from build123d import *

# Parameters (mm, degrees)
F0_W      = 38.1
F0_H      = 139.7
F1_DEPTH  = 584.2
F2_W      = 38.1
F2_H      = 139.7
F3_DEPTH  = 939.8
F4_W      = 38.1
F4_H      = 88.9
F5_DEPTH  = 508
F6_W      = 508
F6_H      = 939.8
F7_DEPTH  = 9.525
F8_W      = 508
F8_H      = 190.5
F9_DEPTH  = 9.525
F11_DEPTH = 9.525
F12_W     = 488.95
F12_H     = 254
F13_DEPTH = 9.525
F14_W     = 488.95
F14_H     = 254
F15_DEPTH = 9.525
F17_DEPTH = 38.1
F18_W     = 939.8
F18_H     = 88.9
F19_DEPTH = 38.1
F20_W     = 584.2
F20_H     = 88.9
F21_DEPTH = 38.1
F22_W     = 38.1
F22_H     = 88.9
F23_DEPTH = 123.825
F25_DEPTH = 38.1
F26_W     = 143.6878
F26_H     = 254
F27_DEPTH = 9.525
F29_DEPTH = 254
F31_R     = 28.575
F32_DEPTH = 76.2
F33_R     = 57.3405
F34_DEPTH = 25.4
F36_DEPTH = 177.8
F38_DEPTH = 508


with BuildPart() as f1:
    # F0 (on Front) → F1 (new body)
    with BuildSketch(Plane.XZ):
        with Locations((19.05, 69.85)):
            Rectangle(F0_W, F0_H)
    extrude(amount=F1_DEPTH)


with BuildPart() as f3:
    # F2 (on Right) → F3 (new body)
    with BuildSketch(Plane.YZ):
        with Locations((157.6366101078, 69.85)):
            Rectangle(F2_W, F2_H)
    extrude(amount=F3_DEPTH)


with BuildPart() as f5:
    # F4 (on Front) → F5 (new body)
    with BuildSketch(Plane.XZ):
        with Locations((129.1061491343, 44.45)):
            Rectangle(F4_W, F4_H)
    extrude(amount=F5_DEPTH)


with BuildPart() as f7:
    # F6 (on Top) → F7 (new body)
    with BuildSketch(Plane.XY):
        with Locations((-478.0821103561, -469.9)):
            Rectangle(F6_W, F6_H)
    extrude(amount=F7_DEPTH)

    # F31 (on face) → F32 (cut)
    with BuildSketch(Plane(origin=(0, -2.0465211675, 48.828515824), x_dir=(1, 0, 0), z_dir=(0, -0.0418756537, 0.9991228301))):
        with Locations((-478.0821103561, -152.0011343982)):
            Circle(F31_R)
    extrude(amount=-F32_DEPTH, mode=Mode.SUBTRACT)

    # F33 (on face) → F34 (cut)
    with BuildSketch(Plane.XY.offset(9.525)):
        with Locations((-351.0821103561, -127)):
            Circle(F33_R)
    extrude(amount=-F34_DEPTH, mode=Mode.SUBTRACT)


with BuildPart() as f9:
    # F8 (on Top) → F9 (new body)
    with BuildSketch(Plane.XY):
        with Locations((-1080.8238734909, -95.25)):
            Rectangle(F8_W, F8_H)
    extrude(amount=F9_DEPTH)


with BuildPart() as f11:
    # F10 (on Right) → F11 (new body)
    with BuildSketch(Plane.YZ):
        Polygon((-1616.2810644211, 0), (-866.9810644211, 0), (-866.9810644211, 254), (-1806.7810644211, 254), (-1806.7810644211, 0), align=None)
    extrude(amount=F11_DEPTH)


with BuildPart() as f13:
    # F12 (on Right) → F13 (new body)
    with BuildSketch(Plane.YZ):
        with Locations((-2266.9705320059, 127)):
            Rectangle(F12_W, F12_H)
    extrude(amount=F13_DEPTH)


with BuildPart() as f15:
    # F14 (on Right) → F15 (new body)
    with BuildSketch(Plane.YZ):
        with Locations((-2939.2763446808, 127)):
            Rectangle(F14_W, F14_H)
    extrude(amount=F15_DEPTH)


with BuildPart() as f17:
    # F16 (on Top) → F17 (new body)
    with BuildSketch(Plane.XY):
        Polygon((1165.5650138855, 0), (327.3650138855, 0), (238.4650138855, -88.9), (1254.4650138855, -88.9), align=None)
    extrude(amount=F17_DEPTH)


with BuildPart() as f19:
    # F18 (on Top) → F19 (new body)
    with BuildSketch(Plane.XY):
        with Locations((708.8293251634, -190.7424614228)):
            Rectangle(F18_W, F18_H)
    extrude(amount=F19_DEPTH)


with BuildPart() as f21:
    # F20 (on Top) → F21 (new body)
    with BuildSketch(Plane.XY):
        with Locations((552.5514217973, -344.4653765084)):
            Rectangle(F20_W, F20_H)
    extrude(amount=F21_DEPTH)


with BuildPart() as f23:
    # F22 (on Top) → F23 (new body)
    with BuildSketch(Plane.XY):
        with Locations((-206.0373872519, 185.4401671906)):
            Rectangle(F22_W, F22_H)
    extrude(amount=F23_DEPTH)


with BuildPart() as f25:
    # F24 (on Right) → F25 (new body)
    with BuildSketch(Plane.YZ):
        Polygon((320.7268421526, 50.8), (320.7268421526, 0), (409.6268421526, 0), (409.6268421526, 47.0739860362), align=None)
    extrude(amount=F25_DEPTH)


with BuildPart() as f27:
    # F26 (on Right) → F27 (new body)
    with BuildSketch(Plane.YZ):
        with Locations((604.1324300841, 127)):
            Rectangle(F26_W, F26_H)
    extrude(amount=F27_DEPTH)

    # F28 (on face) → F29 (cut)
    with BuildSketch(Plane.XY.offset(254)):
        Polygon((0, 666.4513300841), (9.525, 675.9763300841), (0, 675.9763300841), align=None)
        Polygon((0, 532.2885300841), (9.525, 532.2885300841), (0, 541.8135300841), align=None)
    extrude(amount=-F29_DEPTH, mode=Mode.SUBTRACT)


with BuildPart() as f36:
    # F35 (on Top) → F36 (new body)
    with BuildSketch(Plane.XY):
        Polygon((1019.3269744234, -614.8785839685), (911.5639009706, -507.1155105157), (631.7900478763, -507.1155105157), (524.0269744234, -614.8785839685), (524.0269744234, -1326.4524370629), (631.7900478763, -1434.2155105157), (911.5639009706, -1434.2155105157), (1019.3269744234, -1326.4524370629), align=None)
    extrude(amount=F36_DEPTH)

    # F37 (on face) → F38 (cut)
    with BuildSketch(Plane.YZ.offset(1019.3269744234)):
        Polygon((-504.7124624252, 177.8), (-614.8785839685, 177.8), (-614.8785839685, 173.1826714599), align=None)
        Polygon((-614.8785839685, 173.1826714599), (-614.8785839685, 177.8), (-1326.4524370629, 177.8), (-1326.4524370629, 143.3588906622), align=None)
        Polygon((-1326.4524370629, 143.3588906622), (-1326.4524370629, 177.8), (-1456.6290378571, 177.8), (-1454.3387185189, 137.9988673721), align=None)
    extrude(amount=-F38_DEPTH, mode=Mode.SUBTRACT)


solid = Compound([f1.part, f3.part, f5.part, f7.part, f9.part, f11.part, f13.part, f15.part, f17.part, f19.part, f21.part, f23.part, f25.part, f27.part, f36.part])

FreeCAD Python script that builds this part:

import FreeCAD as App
import Part
import Sketcher

V = App.Vector
Q = App.Units.Quantity

doc = App.newDocument("Part")
params = doc.addObject("Spreadsheet::Sheet", "Params")
for row, (alias, value) in enumerate([
    ("sketch1_width", "1.5 in"),
    ("sketch1_height", "5.5 in"),
    ("pad1_length", "23 in"),
    ("sketch2_width", "1.5 in"),
    ("sketch2_height", "5.5 in"),
    ("pad2_length", "37 in"),
    ("sketch3_width", "1.5 in"),
    ("sketch3_height", "3.5 in"),
    ("pad3_length", "20 in"),
    ("sketch4_width", "20 in"),
    ("sketch4_height", "37 in"),
    ("pad4_length", "0.375 in"),
    ("sketch5_diameter", "2.25 in"),
    ("pocket1_length", "3 in"),
    ("sketch6_diameter", "4.515 in"),
    ("pocket2_length", "1 in"),
    ("sketch7_width", "20 in"),
    ("sketch7_height", "7.5 in"),
    ("pad5_length", "0.375 in"),
    ("sketch8_width", "37 in"),
    ("sketch8_height", "10 in"),
    ("pad6_length", "0.375 in"),
    ("sketch9_height", "10 in"),
    ("sketch9_width", "19.25 in"),
    ("pad7_length", "0.375 in"),
    ("sketch10_height", "10 in"),
    ("sketch10_width", "19.25 in"),
    ("pad8_length", "0.375 in"),
    ("sketch11_width", "33 in"),
    ("sketch11_width2", "40 in"),
    ("pad9_length", "1.5 in"),
    ("sketch12_width", "37 in"),
    ("sketch12_height", "3.5 in"),
    ("pad10_length", "1.5 in"),
    ("sketch13_width", "23 in"),
    ("sketch13_height", "3.5 in"),
    ("pad11_length", "1.5 in"),
    ("sketch14_width", "1.5 in"),
    ("sketch14_height", "3.5 in"),
    ("pad12_length", "4.875 in"),
    ("sketch15_height", "2 in"),
    ("sketch15_width", "3.5 in"),
    ("pad13_length", "1.5 in"),
    ("sketch16_height", "10 in"),
    ("sketch16_width", "5.657 in"),
    ("pad14_length", "0.375 in"),
    ("sketch17_width", "0.375 in"),
    ("pocket3_length", "10 in"),
    ("sketch18_length", "6 in"),
    ("pad15_length", "7 in"),
    ("pocket4_length", "20 in"),
], start=1):
    params.set(f"A{row}", alias)
    params.set(f"B{row}", "=" + value)
    params.setAlias(f"B{row}", alias)

body = doc.addObject("PartDesign::Body", "Body")

# Sketch on XZ plane
sketch1 = body.newObject("Sketcher::SketchObject", "Sketch")
sketch1.AttachmentSupport = (doc.getObject("XZ_Plane"), [""])
sketch1.MapMode = "FlatFace"
sketch1.addGeometry([
    Part.LineSegment(V(0, 139.7, 0), V(0, 0, 0)),
    Part.LineSegment(V(0, 0, 0), V(38.1, 0, 0)),
    Part.LineSegment(V(38.1, 0, 0), V(38.1, 139.7, 0)),
    Part.LineSegment(V(38.1, 139.7, 0), V(0, 139.7, 0)),
], False)
sketch1.addConstraint([
    Sketcher.Constraint("Coincident", 0, 2, 1, 1),
    Sketcher.Constraint("Coincident", 1, 2, 2, 1),
    Sketcher.Constraint("Coincident", 2, 2, 3, 1),
    Sketcher.Constraint("Coincident", 3, 2, 0, 1),
    Sketcher.Constraint("Vertical", 0),
    Sketcher.Constraint("Horizontal", 1),
    Sketcher.Constraint("Vertical", 2),
    Sketcher.Constraint("Horizontal", 3),
    Sketcher.Constraint("Coincident", 0, 2, -1, 1),
    Sketcher.Constraint("DistanceX", 1, 1, 1, 2, Q("1.5 in")),
    Sketcher.Constraint("DistanceY", 0, 2, 0, 1, Q("5.5 in")),
])
sketch1.setExpression("Constraints[9]", "Params.sketch1_width")
sketch1.setExpression("Constraints[10]", "Params.sketch1_height")
pad1 = body.newObject("PartDesign::Pad", "Pad")
pad1.Profile = sketch1
pad1.setExpression("Length", "Params.pad1_length")
body2 = doc.addObject("PartDesign::Body", "Body001")

# Sketch on YZ plane
sketch2 = body2.newObject("Sketcher::SketchObject", "Sketch001")
sketch2.AttachmentSupport = (doc.getObject("YZ_Plane001"), [""])
sketch2.MapMode = "FlatFace"
sketch2.addGeometry([
    Part.LineSegment(V(138.58661, 139.7, 0), V(138.58661, 0, 0)),
    Part.LineSegment(V(138.58661, 0, 0), V(176.68661, 0, 0)),
    Part.LineSegment(V(176.68661, 0, 0), V(176.68661, 139.7, 0)),
    Part.LineSegment(V(176.68661, 139.7, 0), V(138.58661, 139.7, 0)),
], False)
sketch2.addConstraint([
    Sketcher.Constraint("Coincident", 0, 2, 1, 1),
    Sketcher.Constraint("Coincident", 1, 2, 2, 1),
    Sketcher.Constraint("Coincident", 2, 2, 3, 1),
    Sketcher.Constraint("Coincident", 3, 2, 0, 1),
    Sketcher.Constraint("Vertical", 0),
    Sketcher.Constraint("Horizontal", 1),
    Sketcher.Constraint("Vertical", 2),
    Sketcher.Constraint("Horizontal", 3),
    Sketcher.Constraint("PointOnObject", 0, 2, -1),
    Sketcher.Constraint("DistanceX", 1, 1, 1, 2, Q("1.5 in")),
    Sketcher.Constraint("DistanceY", 0, 2, 0, 1, Q("5.5 in")),
    Sketcher.Constraint("DistanceX", -1, 1, 0, 2, Q("138.58661 mm")),
])
sketch2.setExpression("Constraints[9]", "Params.sketch2_width")
sketch2.setExpression("Constraints[10]", "Params.sketch2_height")
pad2 = body2.newObject("PartDesign::Pad", "Pad001")
pad2.Profile = sketch2
pad2.setExpression("Length", "Params.pad2_length")
body3 = doc.addObject("PartDesign::Body", "Body002")

# Sketch on XZ plane
sketch3 = body3.newObject("Sketcher::SketchObject", "Sketch002")
sketch3.AttachmentSupport = (doc.getObject("XZ_Plane002"), [""])
sketch3.MapMode = "FlatFace"
sketch3.addGeometry([
    Part.LineSegment(V(110.056149, 88.9, 0), V(110.056149, 0, 0)),
    Part.LineSegment(V(110.056149, 0, 0), V(148.156149, 0, 0)),
    Part.LineSegment(V(148.156149, 0, 0), V(148.156149, 88.9, 0)),
    Part.LineSegment(V(148.156149, 88.9, 0), V(110.056149, 88.9, 0)),
], False)
sketch3.addConstraint([
    Sketcher.Constraint("Coincident", 0, 2, 1, 1),
    Sketcher.Constraint("Coincident", 1, 2, 2, 1),
    Sketcher.Constraint("Coincident", 2, 2, 3, 1),
    Sketcher.Constraint("Coincident", 3, 2, 0, 1),
    Sketcher.Constraint("Vertical", 0),
    Sketcher.Constraint("Horizontal", 1),
    Sketcher.Constraint("Vertical", 2),
    Sketcher.Constraint("Horizontal", 3),
    Sketcher.Constraint("PointOnObject", 0, 2, -1),
    Sketcher.Constraint("DistanceX", 1, 1, 1, 2, Q("1.5 in")),
    Sketcher.Constraint("DistanceY", 0, 2, 0, 1, Q("3.5 in")),
    Sketcher.Constraint("DistanceX", -1, 1, 0, 2, Q("110.056149 mm")),
])
sketch3.setExpression("Constraints[9]", "Params.sketch3_width")
sketch3.setExpression("Constraints[10]", "Params.sketch3_height")
pad3 = body3.newObject("PartDesign::Pad", "Pad002")
pad3.Profile = sketch3
pad3.setExpression("Length", "Params.pad3_length")
body4 = doc.addObject("PartDesign::Body", "Body003")

# Sketch on XY plane
sketch4 = body4.newObject("Sketcher::SketchObject", "Sketch003")
sketch4.AttachmentSupport = (doc.getObject("XY_Plane003"), [""])
sketch4.MapMode = "FlatFace"
sketch4.addGeometry([
    Part.LineSegment(V(-732.08211, 0, 0), V(-732.08211, -939.8, 0)),
    Part.LineSegment(V(-732.08211, -939.8, 0), V(-224.08211, -939.8, 0)),
    Part.LineSegment(V(-224.08211, -939.8, 0), V(-224.08211, 0, 0)),
    Part.LineSegment(V(-224.08211, 0, 0), V(-732.08211, 0, 0)),
], False)
sketch4.addConstraint([
    Sketcher.Constraint("Coincident", 0, 2, 1, 1),
    Sketcher.Constraint("Coincident", 1, 2, 2, 1),
    Sketcher.Constraint("Coincident", 2, 2, 3, 1),
    Sketcher.Constraint("Coincident", 3, 2, 0, 1),
    Sketcher.Constraint("Vertical", 0),
    Sketcher.Constraint("Horizontal", 1),
    Sketcher.Constraint("Vertical", 2),
    Sketcher.Constraint("Horizontal", 3),
    Sketcher.Constraint("PointOnObject", 2, 2, -1),
    Sketcher.Constraint("DistanceX", 1, 1, 1, 2, Q("20 in")),
    Sketcher.Constraint("DistanceY", 0, 2, 0, 1, Q("37 in")),
    Sketcher.Constraint("DistanceX", 0, 2, -1, 1, Q("732.08211 mm")),
])
sketch4.setExpression("Constraints[9]", "Params.sketch4_width")
sketch4.setExpression("Constraints[10]", "Params.sketch4_height")
pad4 = body4.newObject("PartDesign::Pad", "Pad003")
pad4.Profile = sketch4
pad4.setExpression("Length", "Params.pad4_length")

# Sketch on an angled plane
sketch5 = body4.newObject("Sketcher::SketchObject", "Sketch004")
sketch5.Placement = App.Placement(V(0, -2.046521, 48.828516), App.Rotation(V(1, 0, 0), V(0, 0.99912283, 0.041875654), V(0, -0.041875654, 0.99912283), "ZXY"))
sketch5.addGeometry(Part.Circle(V(-478.08211, -152.001134, 0), V(0, 0, 1), 28.575), False)
sketch5.addConstraint([
    Sketcher.Constraint("Diameter", 0, Q("2.25 in")),
    Sketcher.Constraint("DistanceX", 0, 3, -1, 1, Q("478.08211 mm")),
    Sketcher.Constraint("DistanceY", 0, 3, -1, 1, Q("152.001134 mm")),
])
sketch5.setExpression("Constraints[0]", "Params.sketch5_diameter")
pocket1 = body4.newObject("PartDesign::Pocket", "Pocket")
pocket1.Profile = sketch5
pocket1.setExpression("Length", "Params.pocket1_length")

# Sketch on XY plane
sketch6 = body4.newObject("Sketcher::SketchObject", "Sketch005")
sketch6.AttachmentSupport = (doc.getObject("XY_Plane003"), [""])
sketch6.MapMode = "FlatFace"
sketch6.AttachmentOffset = App.Placement(V(0, 0, 0.375 * 25.4), App.Rotation())
sketch6.addGeometry(Part.Circle(V(-351.08211, -127, 0), V(0, 0, 1), 57.3405), False)
sketch6.addConstraint([
    Sketcher.Constraint("Diameter", 0, Q("4.515 in")),
    Sketcher.Constraint("DistanceY", 0, 3, -1, 1, Q("5 in")),
    Sketcher.Constraint("DistanceX", 0, 3, -1, 1, Q("351.08211 mm")),
])
sketch6.setExpression("Constraints[0]", "Params.sketch6_diameter")
pocket2 = body4.newObject("PartDesign::Pocket", "Pocket001")
pocket2.Profile = sketch6
pocket2.setExpression("Length", "Params.pocket2_length")
body5 = doc.addObject("PartDesign::Body", "Body004")

# Sketch on XY plane
sketch7 = body5.newObject("Sketcher::SketchObject", "Sketch006")
sketch7.AttachmentSupport = (doc.getObject("XY_Plane004"), [""])
sketch7.MapMode = "FlatFace"
sketch7.addGeometry([
    Part.LineSegment(V(-1334.823873, 0, 0), V(-1334.823873, -190.5, 0)),
    Part.LineSegment(V(-1334.823873, -190.5, 0), V(-826.823873, -190.5, 0)),
    Part.LineSegment(V(-826.823873, -190.5, 0), V(-826.823873, 0, 0)),
    Part.LineSegment(V(-826.823873, 0, 0), V(-1334.823873, 0, 0)),
], False)
sketch7.addConstraint([
    Sketcher.Constraint("Coincident", 0, 2, 1, 1),
    Sketcher.Constraint("Coincident", 1, 2, 2, 1),
    Sketcher.Constraint("Coincident", 2, 2, 3, 1),
    Sketcher.Constraint("Coincident", 3, 2, 0, 1),
    Sketcher.Constraint("Vertical", 0),
    Sketcher.Constraint("Horizontal", 1),
    Sketcher.Constraint("Vertical", 2),
    Sketcher.Constraint("Horizontal", 3),
    Sketcher.Constraint("PointOnObject", 2, 2, -1),
    Sketcher.Constraint("DistanceX", 1, 1, 1, 2, Q("20 in")),
    Sketcher.Constraint("DistanceY", 0, 2, 0, 1, Q("7.5 in")),
    Sketcher.Constraint("DistanceX", 0, 2, -1, 1, Q("1334.823873 mm")),
])
sketch7.setExpression("Constraints[9]", "Params.sketch7_width")
sketch7.setExpression("Constraints[10]", "Params.sketch7_height")
pad5 = body5.newObject("PartDesign::Pad", "Pad004")
pad5.Profile = sketch7
pad5.setExpression("Length", "Params.pad5_length")
body6 = doc.addObject("PartDesign::Body", "Body005")

# Sketch on YZ plane
sketch8 = body6.newObject("Sketcher::SketchObject", "Sketch007")
sketch8.AttachmentSupport = (doc.getObject("YZ_Plane005"), [""])
sketch8.MapMode = "FlatFace"
sketch8.addGeometry([
    Part.LineSegment(V(-866.981064, 0, 0), V(-866.981064, 254, 0)),
    Part.LineSegment(V(-866.981064, 254, 0), V(-1806.781064, 254, 0)),
    Part.LineSegment(V(-1806.781064, 254, 0), V(-1806.781064, 0, 0)),
    Part.LineSegment(V(-1806.781064, 0, 0), V(-866.981064, 0, 0)),
], False)
sketch8.addConstraint([
    Sketcher.Constraint("Coincident", 0, 2, 1, 1),
    Sketcher.Constraint("Coincident", 1, 2, 2, 1),
    Sketcher.Constraint("Coincident", 2, 2, 3, 1),
    Sketcher.Constraint("Coincident", 3, 2, 0, 1),
    Sketcher.Constraint("Vertical", 0),
    Sketcher.Constraint("Horizontal", 1),
    Sketcher.Constraint("Vertical", 2),
    Sketcher.Constraint("Horizontal", 3),
    Sketcher.Constraint("PointOnObject", 2, 2, -1),
    Sketcher.Constraint("DistanceX", 1, 2, 1, 1, Q("37 in")),
    Sketcher.Constraint("DistanceY", 0, 1, 0, 2, Q("10 in")),
    Sketcher.Constraint("DistanceX", 0, 2, -1, 1, Q("866.981064 mm")),
])
sketch8.setExpression("Constraints[9]", "Params.sketch8_width")
sketch8.setExpression("Constraints[10]", "Params.sketch8_height")
pad6 = body6.newObject("PartDesign::Pad", "Pad005")
pad6.Profile = sketch8
pad6.setExpression("Length", "Params.pad6_length")
body7 = doc.addObject("PartDesign::Body", "Body006")

# Sketch on YZ plane
sketch9 = body7.newObject("Sketcher::SketchObject", "Sketch008")
sketch9.AttachmentSupport = (doc.getObject("YZ_Plane006"), [""])
sketch9.MapMode = "FlatFace"
sketch9.addGeometry([
    Part.LineSegment(V(-2511.445532, 254, 0), V(-2511.445532, 0, 0)),
    Part.LineSegment(V(-2511.445532, 0, 0), V(-2022.495532, 0, 0)),
    Part.LineSegment(V(-2022.495532, 0, 0), V(-2022.495532, 254, 0)),
    Part.LineSegment(V(-2022.495532, 254, 0), V(-2511.445532, 254, 0)),
], False)
sketch9.addConstraint([
    Sketcher.Constraint("Coincident", 0, 2, 1, 1),
    Sketcher.Constraint("Coincident", 1, 2, 2, 1),
    Sketcher.Constraint("Coincident", 2, 2, 3, 1),
    Sketcher.Constraint("Coincident", 3, 2, 0, 1),
    Sketcher.Constraint("Vertical", 0),
    Sketcher.Constraint("Horizontal", 1),
    Sketcher.Constraint("Vertical", 2),
    Sketcher.Constraint("Horizontal", 3),
    Sketcher.Constraint("PointOnObject", 0, 2, -1),
    Sketcher.Constraint("DistanceY", 0, 2, 0, 1, Q("10 in")),
    Sketcher.Constraint("DistanceX", 1, 1, 1, 2, Q("19.25 in")),
    Sketcher.Constraint("DistanceX", 0, 2, -1, 1, Q("2511.445532 mm")),
])
sketch9.setExpression("Constraints[9]", "Params.sketch9_height")
sketch9.setExpression("Constraints[10]", "Params.sketch9_width")
pad7 = body7.newObject("PartDesign::Pad", "Pad006")
pad7.Profile = sketch9
pad7.setExpression("Length", "Params.pad7_length")
body8 = doc.addObject("PartDesign::Body", "Body007")

# Sketch on YZ plane
sketch10 = body8.newObject("Sketcher::SketchObject", "Sketch009")
sketch10.AttachmentSupport = (doc.getObject("YZ_Plane007"), [""])
sketch10.MapMode = "FlatFace"
sketch10.addGeometry([
    Part.LineSegment(V(-3183.751345, 254, 0), V(-3183.751345, 0, 0)),
    Part.LineSegment(V(-3183.751345, 0, 0), V(-2694.801345, 0, 0)),
    Part.LineSegment(V(-2694.801345, 0, 0), V(-2694.801345, 254, 0)),
    Part.LineSegment(V(-2694.801345, 254, 0), V(-3183.751345, 254, 0)),
], False)
sketch10.addConstraint([
    Sketcher.Constraint("Coincident", 0, 2, 1, 1),
    Sketcher.Constraint("Coincident", 1, 2, 2, 1),
    Sketcher.Constraint("Coincident", 2, 2, 3, 1),
    Sketcher.Constraint("Coincident", 3, 2, 0, 1),
    Sketcher.Constraint("Vertical", 0),
    Sketcher.Constraint("Horizontal", 1),
    Sketcher.Constraint("Vertical", 2),
    Sketcher.Constraint("Horizontal", 3),
    Sketcher.Constraint("PointOnObject", 0, 2, -1),
    Sketcher.Constraint("DistanceY", 0, 2, 0, 1, Q("10 in")),
    Sketcher.Constraint("DistanceX", 1, 1, 1, 2, Q("19.25 in")),
    Sketcher.Constraint("DistanceX", 0, 2, -1, 1, Q("3183.751345 mm")),
])
sketch10.setExpression("Constraints[9]", "Params.sketch10_height")
sketch10.setExpression("Constraints[10]", "Params.sketch10_width")
pad8 = body8.newObject("PartDesign::Pad", "Pad007")
pad8.Profile = sketch10
pad8.setExpression("Length", "Params.pad8_length")
body9 = doc.addObject("PartDesign::Body", "Body008")

# Sketch on XY plane
sketch11 = body9.newObject("Sketcher::SketchObject", "Sketch010")
sketch11.AttachmentSupport = (doc.getObject("XY_Plane008"), [""])
sketch11.MapMode = "FlatFace"
sketch11.addGeometry([
    Part.LineSegment(V(1165.565014, 0, 0), V(327.365014, 0, 0)),
    Part.LineSegment(V(327.365014, 0, 0), V(238.465014, -88.9, 0)),
    Part.LineSegment(V(238.465014, -88.9, 0), V(1254.465014, -88.9, 0)),
    Part.LineSegment(V(1254.465014, -88.9, 0), V(1165.565014, 0, 0)),
], False)
sketch11.addConstraint([
    Sketcher.Constraint("Coincident", 0, 2, 1, 1),
    Sketcher.Constraint("Coincident", 1, 2, 2, 1),
    Sketcher.Constraint("Coincident", 2, 2, 3, 1),
    Sketcher.Constraint("Coincident", 3, 2, 0, 1),
    Sketcher.Constraint("Horizontal", 0),
    Sketcher.Constraint("Horizontal", 2),
    Sketcher.Constraint("PointOnObject", 0, 2, -1),
    Sketcher.Constraint("Perpendicular", 1, 3),
    Sketcher.Constraint("Equal", 1, 3),
    Sketcher.Constraint("DistanceX", 0, 2, 0, 1, Q("33 in")),
    Sketcher.Constraint("DistanceX", 2, 1, 2, 2, Q("40 in")),
    Sketcher.Constraint("DistanceX", -1, 1, 0, 2, Q("327.365014 mm")),
])
sketch11.setExpression("Constraints[9]", "Params.sketch11_width")
sketch11.setExpression("Constraints[10]", "Params.sketch11_width2")
pad9 = body9.newObject("PartDesign::Pad", "Pad008")
pad9.Profile = sketch11
pad9.setExpression("Length", "Params.pad9_length")
body10 = doc.addObject("PartDesign::Body", "Body009")

# Sketch on XY plane
sketch12 = body10.newObject("Sketcher::SketchObject", "Sketch011")
sketch12.AttachmentSupport = (doc.getObject("XY_Plane009"), [""])
sketch12.MapMode = "FlatFace"
sketch12.addGeometry([
    Part.LineSegment(V(238.929325, -146.292461, 0), V(238.929325, -235.192461, 0)),
    Part.LineSegment(V(238.929325, -235.192461, 0), V(1178.729325, -235.192461, 0)),
    Part.LineSegment(V(1178.729325, -235.192461, 0), V(1178.729325, -146.292461, 0)),
    Part.LineSegment(V(1178.729325, -146.292461, 0), V(238.929325, -146.292461, 0)),
], False)
sketch12.addConstraint([
    Sketcher.Constraint("Coincident", 0, 2, 1, 1),
    Sketcher.Constraint("Coincident", 1, 2, 2, 1),
    Sketcher.Constraint("Coincident", 2, 2, 3, 1),
    Sketcher.Constraint("Coincident", 3, 2, 0, 1),
    Sketcher.Constraint("Vertical", 0),
    Sketcher.Constraint("Horizontal", 1),
    Sketcher.Constraint("Vertical", 2),
    Sketcher.Constraint("Horizontal", 3),
    Sketcher.Constraint("DistanceX", 1, 1, 1, 2, Q("37 in")),
    Sketcher.Constraint("DistanceY", 0, 2, 0, 1, Q("3.5 in")),
    Sketcher.Constraint("DistanceY", 0, 2, -1, 1, Q("235.192461 mm")),
    Sketcher.Constraint("DistanceX", -1, 1, 0, 2, Q("238.929325 mm")),
])
sketch12.setExpression("Constraints[8]", "Params.sketch12_width")
sketch12.setExpression("Constraints[9]", "Params.sketch12_height")
pad10 = body10.newObject("PartDesign::Pad", "Pad009")
pad10.Profile = sketch12
pad10.setExpression("Length", "Params.pad10_length")
body11 = doc.addObject("PartDesign::Body", "Body010")

# Sketch on XY plane
sketch13 = body11.newObject("Sketcher::SketchObject", "Sketch012")
sketch13.AttachmentSupport = (doc.getObject("XY_Plane010"), [""])
sketch13.MapMode = "FlatFace"
sketch13.addGeometry([
    Part.LineSegment(V(260.451422, -300.015377, 0), V(260.451422, -388.915377, 0)),
    Part.LineSegment(V(260.451422, -388.915377, 0), V(844.651422, -388.915377, 0)),
    Part.LineSegment(V(844.651422, -388.915377, 0), V(844.651422, -300.015377, 0)),
    Part.LineSegment(V(844.651422, -300.015377, 0), V(260.451422, -300.015377, 0)),
], False)
sketch13.addConstraint([
    Sketcher.Constraint("Coincident", 0, 2, 1, 1),
    Sketcher.Constraint("Coincident", 1, 2, 2, 1),
    Sketcher.Constraint("Coincident", 2, 2, 3, 1),
    Sketcher.Constraint("Coincident", 3, 2, 0, 1),
    Sketcher.Constraint("Vertical", 0),
    Sketcher.Constraint("Horizontal", 1),
    Sketcher.Constraint("Vertical", 2),
    Sketcher.Constraint("Horizontal", 3),
    Sketcher.Constraint("DistanceX", 1, 1, 1, 2, Q("23 in")),
    Sketcher.Constraint("DistanceY", 0, 2, 0, 1, Q("3.5 in")),
    Sketcher.Constraint("DistanceX", -1, 1, 0, 2, Q("260.451422 mm")),
    Sketcher.Constraint("DistanceY", 0, 2, -1, 1, Q("388.915377 mm")),
])
sketch13.setExpression("Constraints[8]", "Params.sketch13_width")
sketch13.setExpression("Constraints[9]", "Params.sketch13_height")
pad11 = body11.newObject("PartDesign::Pad", "Pad010")
pad11.Profile = sketch13
pad11.setExpression("Length", "Params.pad11_length")
body12 = doc.addObject("PartDesign::Body", "Body011")

# Sketch on XY plane
sketch14 = body12.newObject("Sketcher::SketchObject", "Sketch013")
sketch14.AttachmentSupport = (doc.getObject("XY_Plane011"), [""])
sketch14.MapMode = "FlatFace"
sketch14.addGeometry([
    Part.LineSegment(V(-225.087387, 229.890167, 0), V(-225.087387, 140.990167, 0)),
    Part.LineSegment(V(-225.087387, 140.990167, 0), V(-186.987387, 140.990167, 0)),
    Part.LineSegment(V(-186.987387, 140.990167, 0), V(-186.987387, 229.890167, 0)),
    Part.LineSegment(V(-186.987387, 229.890167, 0), V(-225.087387, 229.890167, 0)),
], False)
sketch14.addConstraint([
    Sketcher.Constraint("Coincident", 0, 2, 1, 1),
    Sketcher.Constraint("Coincident", 1, 2, 2, 1),
    Sketcher.Constraint("Coincident", 2, 2, 3, 1),
    Sketcher.Constraint("Coincident", 3, 2, 0, 1),
    Sketcher.Constraint("Vertical", 0),
    Sketcher.Constraint("Horizontal", 1),
    Sketcher.Constraint("Vertical", 2),
    Sketcher.Constraint("Horizontal", 3),
    Sketcher.Constraint("DistanceX", 1, 1, 1, 2, Q("1.5 in")),
    Sketcher.Constraint("DistanceY", 0, 2, 0, 1, Q("3.5 in")),
    Sketcher.Constraint("DistanceX", 0, 2, -1, 1, Q("225.087387 mm")),
    Sketcher.Constraint("DistanceY", -1, 1, 0, 2, Q("140.990167 mm")),
])
sketch14.setExpression("Constraints[8]", "Params.sketch14_width")
sketch14.setExpression("Constraints[9]", "Params.sketch14_height")
pad12 = body12.newObject("PartDesign::Pad", "Pad011")
pad12.Profile = sketch14
pad12.setExpression("Length", "Params.pad12_length")
body13 = doc.addObject("PartDesign::Body", "Body012")

# Sketch on YZ plane
sketch15 = body13.newObject("Sketcher::SketchObject", "Sketch014")
sketch15.AttachmentSupport = (doc.getObject("YZ_Plane012"), [""])
sketch15.MapMode = "FlatFace"
sketch15.addGeometry([
    Part.LineSegment(V(320.726842, 50.8, 0), V(320.726842, 0, 0)),
    Part.LineSegment(V(320.726842, 0, 0), V(409.626842, 0, 0)),
    Part.LineSegment(V(409.626842, 0, 0), V(409.626842, 47.073986, 0)),
    Part.LineSegment(V(409.626842, 47.073986, 0), V(320.726842, 50.8, 0)),
], False)
sketch15.addConstraint([
    Sketcher.Constraint("Coincident", 0, 2, 1, 1),
    Sketcher.Constraint("Coincident", 1, 2, 2, 1),
    Sketcher.Constraint("Coincident", 2, 2, 3, 1),
    Sketcher.Constraint("Coincident", 3, 2, 0, 1),
    Sketcher.Constraint("Vertical", 0),
    Sketcher.Constraint("Horizontal", 1),
    Sketcher.Constraint("Vertical", 2),
    Sketcher.Constraint("PointOnObject", 0, 2, -1),
    Sketcher.Constraint("DistanceY", 0, 2, 0, 1, Q("2 in")),
    Sketcher.Constraint("DistanceX", 1, 1, 1, 2, Q("3.5 in")),
    Sketcher.Constraint("Angle", 3, Q("177.6 deg")),
    Sketcher.Constraint("DistanceX", -1, 1, 0, 2, Q("320.726842 mm")),
])
sketch15.setExpression("Constraints[8]", "Params.sketch15_height")
sketch15.setExpression("Constraints[9]", "Params.sketch15_width")
pad13 = body13.newObject("PartDesign::Pad", "Pad012")
pad13.Profile = sketch15
pad13.setExpression("Length", "Params.pad13_length")
body14 = doc.addObject("PartDesign::Body", "Body013")

# Sketch on YZ plane
sketch16 = body14.newObject("Sketcher::SketchObject", "Sketch015")
sketch16.AttachmentSupport = (doc.getObject("YZ_Plane013"), [""])
sketch16.MapMode = "FlatFace"
sketch16.addGeometry([
    Part.LineSegment(V(532.28853, 254, 0), V(532.28853, 0, 0)),
    Part.LineSegment(V(532.28853, 0, 0), V(675.97633, 0, 0)),
    Part.LineSegment(V(675.97633, 0, 0), V(675.97633, 254, 0)),
    Part.LineSegment(V(675.97633, 254, 0), V(532.28853, 254, 0)),
], False)
sketch16.addConstraint([
    Sketcher.Constraint("Coincident", 0, 2, 1, 1),
    Sketcher.Constraint("Coincident", 1, 2, 2, 1),
    Sketcher.Constraint("Coincident", 2, 2, 3, 1),
    Sketcher.Constraint("Coincident", 3, 2, 0, 1),
    Sketcher.Constraint("Vertical", 0),
    Sketcher.Constraint("Horizontal", 1),
    Sketcher.Constraint("Vertical", 2),
    Sketcher.Constraint("Horizontal", 3),
    Sketcher.Constraint("PointOnObject", 0, 2, -1),
    Sketcher.Constraint("DistanceY", 0, 2, 0, 1, Q("10 in")),
    Sketcher.Constraint("DistanceX", 1, 1, 1, 2, Q("5.657 in")),
    Sketcher.Constraint("DistanceX", -1, 1, 0, 2, Q("532.28853 mm")),
])
sketch16.setExpression("Constraints[9]", "Params.sketch16_height")
sketch16.setExpression("Constraints[10]", "Params.sketch16_width")
pad14 = body14.newObject("PartDesign::Pad", "Pad013")
pad14.Profile = sketch16
pad14.setExpression("Length", "Params.pad14_length")

# Sketch on XY plane
sketch17 = body14.newObject("Sketcher::SketchObject", "Sketch016")
sketch17.AttachmentSupport = (doc.getObject("XY_Plane013"), [""])
sketch17.MapMode = "FlatFace"
sketch17.AttachmentOffset = App.Placement(V(0, 0, 10 * 25.4), App.Rotation())
sketch17.addGeometry([
    Part.LineSegment(V(0, 666.45133, 0), V(9.525, 675.97633, 0)),  # 0
    Part.LineSegment(V(9.525, 675.97633, 0), V(0, 675.97633, 0)),  # 1
    Part.LineSegment(V(0, 675.97633, 0), V(0, 666.45133, 0)),  # 2
    Part.LineSegment(V(0, 532.28853, 0), V(9.525, 532.28853, 0)),  # 3
    Part.LineSegment(V(9.525, 532.28853, 0), V(0, 541.81353, 0)),  # 4
    Part.LineSegment(V(0, 541.81353, 0), V(0, 532.28853, 0)),  # 5
], False)
sketch17.addConstraint([
    Sketcher.Constraint("Coincident", 0, 2, 1, 1),
    Sketcher.Constraint("Coincident", 1, 2, 2, 1),
    Sketcher.Constraint("Coincident", 2, 2, 0, 1),
    Sketcher.Constraint("Coincident", 3, 2, 4, 1),
    Sketcher.Constraint("Coincident", 4, 2, 5, 1),
    Sketcher.Constraint("Coincident", 5, 2, 3, 1),
    Sketcher.Constraint("Horizontal", 1),
    Sketcher.Constraint("Vertical", 2),
    Sketcher.Constraint("Horizontal", 3),
    Sketcher.Constraint("Vertical", 5),
    Sketcher.Constraint("PointOnObject", 1, 2, -2),
    Sketcher.Constraint("PointOnObject", 4, 2, -2),
    Sketcher.Constraint("Perpendicular", 0, 4),
    Sketcher.Constraint("Vertical", 0, 2, 3, 2),
    Sketcher.Constraint("Equal", 3, 2),
    Sketcher.Constraint("DistanceX", 1, 2, 1, 1, Q("0.375 in")),
    Sketcher.Constraint("DistanceY", 3, 2, 2, 2, Q("5.282 in")),
    Sketcher.Constraint("DistanceY", -1, 1, 0, 2, Q("675.97633 mm")),
])
sketch17.setExpression("Constraints[15]", "Params.sketch17_width")
pocket3 = body14.newObject("PartDesign::Pocket", "Pocket002")
pocket3.Profile = sketch17
pocket3.setExpression("Length", "Params.pocket3_length")
body15 = doc.addObject("PartDesign::Body", "Body014")

# Sketch on XY plane
sketch18 = body15.newObject("Sketcher::SketchObject", "Sketch017")
sketch18.AttachmentSupport = (doc.getObject("XY_Plane014"), [""])
sketch18.MapMode = "FlatFace"
sketch18.addGeometry([
    Part.LineSegment(V(1019.326974, -614.878584, 0), V(911.563901, -507.115511, 0)),  # 0
    Part.LineSegment(V(911.563901, -507.115511, 0), V(631.790048, -507.115511, 0)),  # 1
    Part.LineSegment(V(631.790048, -507.115511, 0), V(524.026974, -614.878584, 0)),  # 2
    Part.LineSegment(V(524.026974, -614.878584, 0), V(524.026974, -1326.452437, 0)),  # 3
    Part.LineSegment(V(524.026974, -1326.452437, 0), V(631.790048, -1434.215511, 0)),  # 4
    Part.LineSegment(V(631.790048, -1434.215511, 0), V(911.563901, -1434.215511, 0)),  # 5
    Part.LineSegment(V(911.563901, -1434.215511, 0), V(1019.326974, -1326.452437, 0)),  # 6
    Part.LineSegment(V(1019.326974, -1326.452437, 0), V(1019.326974, -614.878584, 0)),  # 7
], False)
sketch18.addConstraint([
    Sketcher.Constraint("Coincident", 0, 2, 1, 1),
    Sketcher.Constraint("Coincident", 1, 2, 2, 1),
    Sketcher.Constraint("Coincident", 2, 2, 3, 1),
    Sketcher.Constraint("Coincident", 3, 2, 4, 1),
    Sketcher.Constraint("Coincident", 4, 2, 5, 1),
    Sketcher.Constraint("Coincident", 5, 2, 6, 1),
    Sketcher.Constraint("Coincident", 6, 2, 7, 1),
    Sketcher.Constraint("Coincident", 7, 2, 0, 1),
    Sketcher.Constraint("Horizontal", 1),
    Sketcher.Constraint("Vertical", 3),
    Sketcher.Constraint("Horizontal", 5),
    Sketcher.Constraint("Vertical", 7),
    Sketcher.Constraint("Perpendicular", 0, 2),
    Sketcher.Constraint("Perpendicular", 2, 4),
    Sketcher.Constraint("Perpendicular", 4, 6),
    Sketcher.Constraint("Horizontal", 3, 2, 6, 2),
    Sketcher.Constraint("Horizontal", 2, 2, 7, 2),
    Sketcher.Constraint("Vertical", 1, 2, 4, 2),
    Sketcher.Constraint("Vertical", 0, 2, 5, 2),
    Sketcher.Constraint("Distance", 0, Q("6 in")),
    Sketcher.Constraint("DistanceY", 4, 2, 1, 2, Q("36.5 in")),
    Sketcher.Constraint("DistanceX", 3, 2, 6, 2, Q("19.5 in")),
    Sketcher.Constraint("DistanceX", -1, 1, 0, 2, Q("911.563901 mm")),
    Sketcher.Constraint("DistanceY", 0, 2, -1, 1, Q("507.115511 mm")),
])
sketch18.setExpression("Constraints[19]", "Params.sketch18_length")
pad15 = body15.newObject("PartDesign::Pad", "Pad014")
pad15.Profile = sketch18
pad15.setExpression("Length", "Params.pad15_length")

# Sketch on YZ plane
sketch19 = body15.newObject("Sketcher::SketchObject", "Sketch018")
sketch19.AttachmentSupport = (doc.getObject("YZ_Plane014"), [""])
sketch19.MapMode = "FlatFace"
sketch19.AttachmentOffset = App.Placement(V(0, 0, 1019.326974), App.Rotation())
sketch19.addGeometry([
    Part.LineSegment(V(-504.712462, 177.8, 0), V(-1456.629038, 177.8, 0)),
    Part.LineSegment(V(-1456.629038, 177.8, 0), V(-1454.338719, 137.998867, 0)),
    Part.LineSegment(V(-1454.338719, 137.998867, 0), V(-504.712462, 177.8, 0)),
], False)
sketch19.addConstraint([
    Sketcher.Constraint("Coincident", 0, 2, 1, 1),
    Sketcher.Constraint("Coincident", 1, 2, 2, 1),
    Sketcher.Constraint("Coincident", 2, 2, 0, 1),
    Sketcher.Constraint("Horizontal", 0),
    Sketcher.Constraint("DistanceY", -1, 1, 0, 2, Q("7 in")),
    Sketcher.Constraint("Angle", 2, Q("2.4 deg")),
    Sketcher.Constraint("DistanceX", 0, 2, -1, 1, Q("57.3475999 in")),
    Sketcher.Constraint("Distance", 2, Q("950.459971 mm")),
    Sketcher.Constraint("DistanceX", 0, 2, 0, 1, Q("951.916575 mm")),
])
pocket4 = body15.newObject("PartDesign::Pocket", "Pocket003")
pocket4.Profile = sketch19
pocket4.setExpression("Length", "Params.pocket4_length")

doc.recompute()
